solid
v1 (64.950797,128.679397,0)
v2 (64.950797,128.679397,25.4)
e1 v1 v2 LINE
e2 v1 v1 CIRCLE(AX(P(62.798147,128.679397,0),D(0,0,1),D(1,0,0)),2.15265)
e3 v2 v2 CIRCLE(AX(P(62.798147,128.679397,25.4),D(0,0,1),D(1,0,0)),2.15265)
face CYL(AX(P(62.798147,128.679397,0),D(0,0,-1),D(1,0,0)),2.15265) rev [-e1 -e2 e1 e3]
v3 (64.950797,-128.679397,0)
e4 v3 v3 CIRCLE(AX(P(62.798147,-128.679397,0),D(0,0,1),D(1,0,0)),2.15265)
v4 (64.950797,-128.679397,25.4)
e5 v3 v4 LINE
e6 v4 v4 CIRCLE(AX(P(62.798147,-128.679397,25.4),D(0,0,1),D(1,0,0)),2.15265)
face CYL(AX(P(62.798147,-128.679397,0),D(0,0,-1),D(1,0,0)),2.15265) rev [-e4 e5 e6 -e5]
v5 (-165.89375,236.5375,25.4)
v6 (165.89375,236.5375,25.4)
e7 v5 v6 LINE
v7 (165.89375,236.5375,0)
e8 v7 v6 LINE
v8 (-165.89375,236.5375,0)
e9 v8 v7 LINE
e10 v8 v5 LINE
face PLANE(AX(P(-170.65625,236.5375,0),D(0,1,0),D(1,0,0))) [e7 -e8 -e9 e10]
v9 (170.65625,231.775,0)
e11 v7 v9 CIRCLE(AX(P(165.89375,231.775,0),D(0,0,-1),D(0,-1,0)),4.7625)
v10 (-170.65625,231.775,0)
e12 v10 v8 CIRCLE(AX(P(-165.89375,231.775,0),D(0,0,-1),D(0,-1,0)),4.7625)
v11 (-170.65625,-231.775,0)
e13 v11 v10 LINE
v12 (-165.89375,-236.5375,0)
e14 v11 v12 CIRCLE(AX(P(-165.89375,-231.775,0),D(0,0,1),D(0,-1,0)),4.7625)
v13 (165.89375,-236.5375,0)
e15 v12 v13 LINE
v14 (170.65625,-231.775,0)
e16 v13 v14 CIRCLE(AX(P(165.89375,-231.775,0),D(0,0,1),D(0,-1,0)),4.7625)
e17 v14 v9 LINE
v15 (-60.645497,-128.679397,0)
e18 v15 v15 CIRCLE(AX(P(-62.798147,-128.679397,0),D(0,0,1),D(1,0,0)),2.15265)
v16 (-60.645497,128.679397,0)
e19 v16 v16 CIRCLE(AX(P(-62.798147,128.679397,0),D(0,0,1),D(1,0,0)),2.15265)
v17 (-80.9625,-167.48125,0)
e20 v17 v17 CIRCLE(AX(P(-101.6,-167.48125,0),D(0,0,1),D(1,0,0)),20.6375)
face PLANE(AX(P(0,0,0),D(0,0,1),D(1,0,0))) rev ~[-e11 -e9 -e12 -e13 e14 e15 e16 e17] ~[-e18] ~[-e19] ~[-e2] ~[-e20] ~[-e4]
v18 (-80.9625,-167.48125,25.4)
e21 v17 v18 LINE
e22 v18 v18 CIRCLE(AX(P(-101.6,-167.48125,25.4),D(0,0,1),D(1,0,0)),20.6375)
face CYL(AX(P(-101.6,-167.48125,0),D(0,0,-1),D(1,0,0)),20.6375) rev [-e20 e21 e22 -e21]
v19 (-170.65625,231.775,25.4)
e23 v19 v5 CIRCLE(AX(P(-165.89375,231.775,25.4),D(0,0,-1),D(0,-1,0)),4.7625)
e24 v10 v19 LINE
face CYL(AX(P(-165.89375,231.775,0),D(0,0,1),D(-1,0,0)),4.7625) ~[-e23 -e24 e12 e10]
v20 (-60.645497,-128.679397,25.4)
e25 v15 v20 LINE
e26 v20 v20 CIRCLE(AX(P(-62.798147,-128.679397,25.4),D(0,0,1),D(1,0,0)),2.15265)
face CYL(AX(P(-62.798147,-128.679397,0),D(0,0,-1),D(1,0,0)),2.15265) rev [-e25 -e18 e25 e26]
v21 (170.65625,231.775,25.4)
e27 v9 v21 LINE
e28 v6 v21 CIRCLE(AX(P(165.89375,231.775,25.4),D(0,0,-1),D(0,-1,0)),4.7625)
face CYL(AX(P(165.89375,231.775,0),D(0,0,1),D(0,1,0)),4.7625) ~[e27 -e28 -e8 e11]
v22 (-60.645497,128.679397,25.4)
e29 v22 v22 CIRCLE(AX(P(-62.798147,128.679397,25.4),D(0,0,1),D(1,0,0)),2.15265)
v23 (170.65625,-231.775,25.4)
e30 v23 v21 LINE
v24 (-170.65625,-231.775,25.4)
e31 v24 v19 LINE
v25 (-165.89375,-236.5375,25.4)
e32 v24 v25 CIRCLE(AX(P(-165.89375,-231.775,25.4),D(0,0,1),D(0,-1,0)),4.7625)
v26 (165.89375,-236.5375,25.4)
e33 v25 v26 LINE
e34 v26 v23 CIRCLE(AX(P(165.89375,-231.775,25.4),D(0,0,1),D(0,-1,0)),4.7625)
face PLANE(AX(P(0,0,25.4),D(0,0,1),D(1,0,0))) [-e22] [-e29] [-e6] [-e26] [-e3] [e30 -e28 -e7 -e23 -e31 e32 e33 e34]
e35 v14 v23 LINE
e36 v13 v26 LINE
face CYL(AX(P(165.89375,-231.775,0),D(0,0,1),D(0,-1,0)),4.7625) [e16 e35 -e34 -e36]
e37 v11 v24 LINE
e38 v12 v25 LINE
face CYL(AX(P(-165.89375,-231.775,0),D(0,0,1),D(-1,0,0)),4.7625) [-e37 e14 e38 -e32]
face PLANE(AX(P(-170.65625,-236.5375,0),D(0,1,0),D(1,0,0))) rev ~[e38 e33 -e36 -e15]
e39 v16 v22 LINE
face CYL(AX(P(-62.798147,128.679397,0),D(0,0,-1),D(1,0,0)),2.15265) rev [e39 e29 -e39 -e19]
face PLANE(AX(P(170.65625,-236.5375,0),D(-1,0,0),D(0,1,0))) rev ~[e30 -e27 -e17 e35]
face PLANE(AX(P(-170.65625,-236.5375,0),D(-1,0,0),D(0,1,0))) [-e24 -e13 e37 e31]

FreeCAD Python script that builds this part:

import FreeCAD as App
import Part
import Sketcher
from FreeCAD import Vector
Q = App.Units.Quantity


def edges_at(feature, points):
    """Names of the edges that pass closest to the given points."""
    edges = feature.Shape.Edges
    near = lambda p: min(range(len(edges)), key=lambda i: edges[i].distToShape(Part.Vertex(*p))[0])
    return sorted({f"Edge{near(p) + 1}" for p in points})

doc = App.newDocument("Part")
body = doc.addObject("PartDesign::Body", "Body")

# Sketch on XY plane
sketch1 = body.newObject("Sketcher::SketchObject", "Sketch")
sketch1.AttachmentSupport = (doc.getObject("XY_Plane"), [""])
sketch1.MapMode = "FlatFace"
sketch1.addGeometry([
    Part.LineSegment(Vector(-170.7, 236.5, 0), Vector(-170.7, -236.5, 0)),  # 0
    Part.LineSegment(Vector(-170.7, -236.5, 0), Vector(170.7, -236.5, 0)),  # 1
    Part.LineSegment(Vector(170.7, -236.5, 0), Vector(170.7, 236.5, 0)),  # 2
    Part.LineSegment(Vector(170.7, 236.5, 0), Vector(-170.7, 236.5, 0)),  # 3
    Part.Circle(Vector(-101.6, -167.5, 0), Vector(0, 0, 1), 20.6),  # 4
    Part.Circle(Vector(-62.8, -128.7, 0), Vector(0, 0, 1), 2.2),  # 5
    Part.Circle(Vector(62.8, -128.7, 0), Vector(0, 0, 1), 2.2),  # 6
    Part.Circle(Vector(-62.8, 128.7, 0), Vector(0, 0, 1), 2.2),  # 7
    Part.Circle(Vector(62.8, 128.7, 0), Vector(0, 0, 1), 2.2),  # 8
], False)
sketch1.addConstraint([
    Sketcher.Constraint("Coincident", 0, 2, 1, 1),
    Sketcher.Constraint("Coincident", 1, 2, 2, 1),
    Sketcher.Constraint("Coincident", 2, 2, 3, 1),
    Sketcher.Constraint("Coincident", 3, 2, 0, 1),
    Sketcher.Constraint("Vertical", 0),
    Sketcher.Constraint("Horizontal", 1),
    Sketcher.Constraint("Vertical", 2),
    Sketcher.Constraint("Horizontal", 3),
    Sketcher.Constraint("Equal", 5, 6),
    Sketcher.Constraint("Equal", 6, 7),
    Sketcher.Constraint("Equal", 7, 8),
    Sketcher.Constraint("Symmetric", 6, 3, 7, 3, -1, 1),
    Sketcher.Constraint("Symmetric", 5, 3, 8, 3, -1, 1),
    Sketcher.Constraint("Symmetric", 0, 2, 2, 2, -1, 1),
    Sketcher.Constraint("Symmetric", 5, 3, 6, 3, -2),
    Sketcher.Constraint("Diameter", 4, Q("1.625 in")),
    Sketcher.Constraint("DistanceX", 4, 3, -1, 1, Q("4 in")),
    Sketcher.Constraint("Diameter", 5, Q("0.1695 in")),
    Sketcher.Constraint("DistanceX", 1, 1, 1, 2, Q("13.4375 in")),
    Sketcher.Constraint("DistanceY", 0, 2, 0, 1, Q("18.625 in")),
    Sketcher.Constraint("DistanceY", 4, 3, -1, 1, Q("6.59375 in")),
    Sketcher.Constraint("DistanceX", 5, 3, -1, 1, 62.798147),
    Sketcher.Constraint("DistanceY", 5, 3, -1, 1, 128.679397),
])
pad1 = body.newObject("PartDesign::Pad", "Pad")
pad1.Profile = sketch1
pad1.Length = Q("1 in")
doc.recompute()

fillet = body.newObject("PartDesign::Fillet", "Fillet")
fillet.Base = (pad1, edges_at(pad1, [
    (-170.656, 236.537, 12.7),
    (170.656, 236.537, 12.7),
    (170.656, -236.537, 12.7),
    (-170.656, -236.537, 12.7),
]))
fillet.Radius = Q("0.1875 in")

doc.recompute()
